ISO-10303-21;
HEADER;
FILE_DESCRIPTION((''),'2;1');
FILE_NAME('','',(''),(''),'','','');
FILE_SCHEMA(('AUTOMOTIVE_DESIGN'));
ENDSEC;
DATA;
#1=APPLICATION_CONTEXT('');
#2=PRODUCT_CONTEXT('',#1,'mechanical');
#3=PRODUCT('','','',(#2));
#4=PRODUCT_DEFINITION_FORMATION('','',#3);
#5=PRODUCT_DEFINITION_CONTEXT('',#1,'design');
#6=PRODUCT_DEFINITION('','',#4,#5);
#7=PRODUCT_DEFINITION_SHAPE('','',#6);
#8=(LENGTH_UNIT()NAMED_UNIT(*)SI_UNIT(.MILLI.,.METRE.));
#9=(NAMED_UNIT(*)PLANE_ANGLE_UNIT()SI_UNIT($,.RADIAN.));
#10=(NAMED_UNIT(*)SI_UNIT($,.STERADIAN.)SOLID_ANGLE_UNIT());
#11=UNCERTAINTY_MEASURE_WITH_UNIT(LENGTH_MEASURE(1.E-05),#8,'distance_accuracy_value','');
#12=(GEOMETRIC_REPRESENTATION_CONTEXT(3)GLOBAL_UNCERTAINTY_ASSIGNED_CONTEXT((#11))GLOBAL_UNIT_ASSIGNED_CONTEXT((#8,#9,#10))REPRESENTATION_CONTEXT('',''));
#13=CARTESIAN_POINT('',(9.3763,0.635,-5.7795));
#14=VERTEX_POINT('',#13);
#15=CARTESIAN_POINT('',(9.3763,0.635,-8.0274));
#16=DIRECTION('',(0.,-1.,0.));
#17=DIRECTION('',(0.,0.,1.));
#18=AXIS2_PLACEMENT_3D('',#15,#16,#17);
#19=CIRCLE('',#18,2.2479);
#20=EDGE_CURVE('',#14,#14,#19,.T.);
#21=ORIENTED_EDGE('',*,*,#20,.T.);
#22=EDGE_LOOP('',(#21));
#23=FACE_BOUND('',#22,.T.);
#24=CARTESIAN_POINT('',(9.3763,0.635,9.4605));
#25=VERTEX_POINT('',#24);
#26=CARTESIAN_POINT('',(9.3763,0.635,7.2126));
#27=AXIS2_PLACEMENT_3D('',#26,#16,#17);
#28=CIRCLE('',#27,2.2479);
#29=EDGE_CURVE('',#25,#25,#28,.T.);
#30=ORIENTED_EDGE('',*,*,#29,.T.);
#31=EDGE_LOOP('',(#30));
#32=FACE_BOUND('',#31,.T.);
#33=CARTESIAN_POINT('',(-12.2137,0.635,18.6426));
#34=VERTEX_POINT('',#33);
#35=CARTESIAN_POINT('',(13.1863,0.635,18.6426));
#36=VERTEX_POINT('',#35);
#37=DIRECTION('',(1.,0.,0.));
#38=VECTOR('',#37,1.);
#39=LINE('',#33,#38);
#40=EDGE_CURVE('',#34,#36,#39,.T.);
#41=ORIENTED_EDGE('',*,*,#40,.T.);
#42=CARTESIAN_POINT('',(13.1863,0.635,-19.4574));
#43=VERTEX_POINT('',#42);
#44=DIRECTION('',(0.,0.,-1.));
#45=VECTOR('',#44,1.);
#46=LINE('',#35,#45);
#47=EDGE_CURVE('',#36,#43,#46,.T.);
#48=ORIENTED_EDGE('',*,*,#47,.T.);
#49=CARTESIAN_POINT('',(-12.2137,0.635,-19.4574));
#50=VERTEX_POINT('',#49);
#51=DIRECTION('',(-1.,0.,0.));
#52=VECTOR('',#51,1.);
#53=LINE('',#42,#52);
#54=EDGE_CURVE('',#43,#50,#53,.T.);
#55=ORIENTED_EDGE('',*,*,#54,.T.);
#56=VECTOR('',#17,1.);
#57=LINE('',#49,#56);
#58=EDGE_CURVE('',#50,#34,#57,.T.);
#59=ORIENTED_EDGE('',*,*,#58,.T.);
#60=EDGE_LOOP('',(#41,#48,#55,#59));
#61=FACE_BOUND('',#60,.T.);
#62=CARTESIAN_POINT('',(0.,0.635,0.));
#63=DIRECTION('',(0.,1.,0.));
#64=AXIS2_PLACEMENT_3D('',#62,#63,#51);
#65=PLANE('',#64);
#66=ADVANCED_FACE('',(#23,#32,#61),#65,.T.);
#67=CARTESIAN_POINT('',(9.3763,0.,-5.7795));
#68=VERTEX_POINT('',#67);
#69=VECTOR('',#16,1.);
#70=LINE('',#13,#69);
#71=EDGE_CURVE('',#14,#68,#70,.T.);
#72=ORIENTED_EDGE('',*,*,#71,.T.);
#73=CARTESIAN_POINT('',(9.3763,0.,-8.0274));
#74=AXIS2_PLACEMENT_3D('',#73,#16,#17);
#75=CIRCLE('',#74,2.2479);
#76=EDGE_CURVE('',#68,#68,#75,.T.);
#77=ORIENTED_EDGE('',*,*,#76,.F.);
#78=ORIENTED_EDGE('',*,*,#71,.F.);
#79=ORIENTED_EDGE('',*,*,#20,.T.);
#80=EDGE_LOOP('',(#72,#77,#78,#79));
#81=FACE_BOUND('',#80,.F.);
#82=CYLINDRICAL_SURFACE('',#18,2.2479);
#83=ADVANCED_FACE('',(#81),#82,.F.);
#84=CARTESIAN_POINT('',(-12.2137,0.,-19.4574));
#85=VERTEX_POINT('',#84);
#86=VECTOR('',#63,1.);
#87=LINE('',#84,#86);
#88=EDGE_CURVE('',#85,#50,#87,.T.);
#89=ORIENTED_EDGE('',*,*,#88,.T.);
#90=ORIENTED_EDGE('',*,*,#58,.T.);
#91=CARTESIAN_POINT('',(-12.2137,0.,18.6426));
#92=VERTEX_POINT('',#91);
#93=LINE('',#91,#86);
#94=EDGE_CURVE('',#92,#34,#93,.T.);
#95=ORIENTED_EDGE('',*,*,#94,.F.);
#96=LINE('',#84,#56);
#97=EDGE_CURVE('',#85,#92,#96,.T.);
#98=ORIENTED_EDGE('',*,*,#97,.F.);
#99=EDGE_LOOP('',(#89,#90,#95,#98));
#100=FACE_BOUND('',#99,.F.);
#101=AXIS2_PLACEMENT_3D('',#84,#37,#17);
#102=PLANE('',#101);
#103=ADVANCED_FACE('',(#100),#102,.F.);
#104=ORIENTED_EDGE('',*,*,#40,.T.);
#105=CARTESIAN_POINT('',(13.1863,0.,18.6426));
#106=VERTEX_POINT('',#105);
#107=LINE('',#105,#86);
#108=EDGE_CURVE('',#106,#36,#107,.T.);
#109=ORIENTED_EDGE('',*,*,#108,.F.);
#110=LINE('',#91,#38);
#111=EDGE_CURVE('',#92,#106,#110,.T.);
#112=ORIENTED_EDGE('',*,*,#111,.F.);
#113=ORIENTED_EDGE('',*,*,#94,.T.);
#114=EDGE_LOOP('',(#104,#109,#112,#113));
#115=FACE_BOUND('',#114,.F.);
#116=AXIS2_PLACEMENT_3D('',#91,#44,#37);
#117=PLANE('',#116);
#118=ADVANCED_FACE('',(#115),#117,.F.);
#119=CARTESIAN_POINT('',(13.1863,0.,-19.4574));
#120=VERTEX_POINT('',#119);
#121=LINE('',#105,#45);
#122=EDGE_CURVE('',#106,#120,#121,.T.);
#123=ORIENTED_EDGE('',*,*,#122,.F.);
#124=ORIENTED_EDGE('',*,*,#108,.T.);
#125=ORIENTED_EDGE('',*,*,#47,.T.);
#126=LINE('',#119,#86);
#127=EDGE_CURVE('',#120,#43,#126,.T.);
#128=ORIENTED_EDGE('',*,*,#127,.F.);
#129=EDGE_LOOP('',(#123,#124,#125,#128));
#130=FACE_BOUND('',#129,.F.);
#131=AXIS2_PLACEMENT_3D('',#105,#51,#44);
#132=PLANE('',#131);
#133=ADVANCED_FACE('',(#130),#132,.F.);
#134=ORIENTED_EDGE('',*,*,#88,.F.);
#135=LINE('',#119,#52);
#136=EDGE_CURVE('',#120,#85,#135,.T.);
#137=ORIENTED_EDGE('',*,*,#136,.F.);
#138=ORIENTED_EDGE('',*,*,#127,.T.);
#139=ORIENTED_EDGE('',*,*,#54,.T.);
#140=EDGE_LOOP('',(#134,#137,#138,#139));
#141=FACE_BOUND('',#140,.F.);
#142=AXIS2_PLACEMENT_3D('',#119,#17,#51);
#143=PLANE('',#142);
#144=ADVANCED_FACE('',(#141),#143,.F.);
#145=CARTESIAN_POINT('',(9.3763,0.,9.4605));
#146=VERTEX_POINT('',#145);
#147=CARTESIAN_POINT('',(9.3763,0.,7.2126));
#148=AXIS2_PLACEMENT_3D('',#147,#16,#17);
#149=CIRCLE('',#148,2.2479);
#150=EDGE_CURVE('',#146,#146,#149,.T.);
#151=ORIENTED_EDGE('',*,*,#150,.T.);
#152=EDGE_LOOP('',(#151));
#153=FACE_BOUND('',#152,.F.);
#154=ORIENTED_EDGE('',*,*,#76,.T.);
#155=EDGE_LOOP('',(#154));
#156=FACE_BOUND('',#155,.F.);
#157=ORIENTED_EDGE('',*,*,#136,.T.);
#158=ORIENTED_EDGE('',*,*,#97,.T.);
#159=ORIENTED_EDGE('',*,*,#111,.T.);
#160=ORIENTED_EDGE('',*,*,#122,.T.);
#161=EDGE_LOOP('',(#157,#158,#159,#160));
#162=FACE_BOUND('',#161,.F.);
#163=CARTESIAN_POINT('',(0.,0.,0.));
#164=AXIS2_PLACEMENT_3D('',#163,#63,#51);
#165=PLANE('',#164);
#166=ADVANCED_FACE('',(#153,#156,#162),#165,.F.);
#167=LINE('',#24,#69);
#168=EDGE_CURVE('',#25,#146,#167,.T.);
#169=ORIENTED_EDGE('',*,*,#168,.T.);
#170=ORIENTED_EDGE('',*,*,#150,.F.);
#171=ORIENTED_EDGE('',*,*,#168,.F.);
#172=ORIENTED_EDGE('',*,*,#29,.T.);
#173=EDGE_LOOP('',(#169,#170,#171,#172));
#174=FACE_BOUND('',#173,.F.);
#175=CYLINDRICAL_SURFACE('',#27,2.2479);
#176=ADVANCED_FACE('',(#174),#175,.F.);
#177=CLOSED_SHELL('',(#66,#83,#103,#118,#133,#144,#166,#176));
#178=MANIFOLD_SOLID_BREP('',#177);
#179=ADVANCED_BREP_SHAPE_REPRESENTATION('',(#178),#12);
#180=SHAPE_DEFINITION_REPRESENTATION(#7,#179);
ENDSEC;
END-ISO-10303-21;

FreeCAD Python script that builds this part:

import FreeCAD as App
import Part
import Sketcher

V = App.Vector
Q = App.Units.Quantity

doc = App.newDocument("Part")
params = doc.addObject("Spreadsheet::Sheet", "Params")
for row, (alias, value) in enumerate([
    ("sketch1_width", "1 in"),
    ("sketch1_height", "1.5 in"),
    ("pad1_length", "0.025 in"),
    ("sketch2_diameter", "0.177 in"),
    ("hole_diameter", "0.177 in"),
    ("hole_depth", "0.025 in"),
    ("sketch3_diameter", "0.177 in"),
    ("hole2_diameter", "0.177 in"),
    ("hole2_depth", "1 in"),
], start=1):
    params.set(f"A{row}", alias)
    params.set(f"B{row}", "=" + value)
    params.setAlias(f"B{row}", alias)

body = doc.addObject("PartDesign::Body", "Body")

sketch1 = body.newObject("Sketcher::SketchObject", "Sketch")
sketch1.AttachmentSupport = (doc.getObject("XZ_Plane"), [""])
sketch1.MapMode = "FlatFace"
sketch1.addGeometry([
    Part.LineSegment(V(-12.2137, -19.4574, 0), V(-12.2137, 18.6426, 0)),
    Part.LineSegment(V(-12.2137, 18.6426, 0), V(13.1863, 18.6426, 0)),
    Part.LineSegment(V(13.1863, 18.6426, 0), V(13.1863, -19.4574, 0)),
    Part.LineSegment(V(13.1863, -19.4574, 0), V(-12.2137, -19.4574, 0)),
], False)
sketch1.addConstraint([
    Sketcher.Constraint("Coincident", 0, 2, 1, 1),
    Sketcher.Constraint("Coincident", 1, 2, 2, 1),
    Sketcher.Constraint("Coincident", 2, 2, 3, 1),
    Sketcher.Constraint("Coincident", 3, 2, 0, 1),
    Sketcher.Constraint("Vertical", 0),
    Sketcher.Constraint("Horizontal", 1),
    Sketcher.Constraint("Vertical", 2),
    Sketcher.Constraint("Horizontal", 3),
    Sketcher.Constraint("DistanceX", 1, 1, 1, 2, Q("1 in")),
    Sketcher.Constraint("DistanceY", 0, 1, 0, 2, Q("1.5 in")),
    Sketcher.Constraint("DistanceX", 0, 2, -1, 1, Q("12.2137 mm")),
    Sketcher.Constraint("DistanceY", -1, 1, 0, 2, Q("18.6426 mm")),
])
sketch1.setExpression("Constraints[8]", "Params.sketch1_width")
sketch1.setExpression("Constraints[9]", "Params.sketch1_height")
pad1 = body.newObject("PartDesign::Pad", "Pad")
pad1.Profile = sketch1
pad1.setExpression("Length", "Params.pad1_length")
pad1.Reversed = True

sketch2 = body.newObject("Sketcher::SketchObject", "Sketch001")
sketch2.AttachmentSupport = (doc.getObject("XZ_Plane"), [""])
sketch2.MapMode = "FlatFace"
sketch2.AttachmentOffset = App.Placement(V(0, 0, -0.025 * 25.4), App.Rotation())
sketch2.addGeometry(Part.Circle(V(9.3763, 7.2126, 0), V(0, 0, 1), 2.2479), False)
sketch2.addConstraint([
    Sketcher.Constraint("Diameter", 0, Q("0.177 in")),
    Sketcher.Constraint("DistanceX", -1, 1, 0, 3, Q("9.3763 mm")),
    Sketcher.Constraint("DistanceY", -1, 1, 0, 3, Q("7.2126 mm")),
])
sketch2.setExpression("Constraints[0]", "Params.sketch2_diameter")
doc.recompute()
hole = body.newObject("PartDesign::Hole", "Hole")
hole.Profile = sketch2
hole.ThreadType = "None"
hole.setExpression("Diameter", "Params.hole_diameter")
hole.DepthType = "Dimension"
hole.setExpression("Depth", "Params.hole_depth")
hole.DrillPoint = "Flat"
hole.Reversed = True

sketch3 = body.newObject("Sketcher::SketchObject", "Sketch002")
sketch3.AttachmentSupport = (doc.getObject("XZ_Plane"), [""])
sketch3.MapMode = "FlatFace"
sketch3.AttachmentOffset = App.Placement(V(0, 0, -0.025 * 25.4), App.Rotation())
sketch3.addGeometry(Part.Circle(V(9.3763, -8.0274, 0), V(0, 0, 1), 2.2479), False)
sketch3.addConstraint([
    Sketcher.Constraint("Diameter", 0, Q("0.177 in")),
    Sketcher.Constraint("DistanceX", -1, 1, 0, 3, Q("9.3763 mm")),
    Sketcher.Constraint("DistanceY", 0, 3, -1, 1, Q("8.0274 mm")),
])
sketch3.setExpression("Constraints[0]", "Params.sketch3_diameter")
doc.recompute()
hole2 = body.newObject("PartDesign::Hole", "Hole001")
hole2.Profile = sketch3
hole2.ThreadType = "None"
hole2.setExpression("Diameter", "Params.hole2_diameter")
hole2.DepthType = "Dimension"
hole2.setExpression("Depth", "Params.hole2_depth")
hole2.DrillPoint = "Flat"
hole2.Reversed = True

doc.recompute()
